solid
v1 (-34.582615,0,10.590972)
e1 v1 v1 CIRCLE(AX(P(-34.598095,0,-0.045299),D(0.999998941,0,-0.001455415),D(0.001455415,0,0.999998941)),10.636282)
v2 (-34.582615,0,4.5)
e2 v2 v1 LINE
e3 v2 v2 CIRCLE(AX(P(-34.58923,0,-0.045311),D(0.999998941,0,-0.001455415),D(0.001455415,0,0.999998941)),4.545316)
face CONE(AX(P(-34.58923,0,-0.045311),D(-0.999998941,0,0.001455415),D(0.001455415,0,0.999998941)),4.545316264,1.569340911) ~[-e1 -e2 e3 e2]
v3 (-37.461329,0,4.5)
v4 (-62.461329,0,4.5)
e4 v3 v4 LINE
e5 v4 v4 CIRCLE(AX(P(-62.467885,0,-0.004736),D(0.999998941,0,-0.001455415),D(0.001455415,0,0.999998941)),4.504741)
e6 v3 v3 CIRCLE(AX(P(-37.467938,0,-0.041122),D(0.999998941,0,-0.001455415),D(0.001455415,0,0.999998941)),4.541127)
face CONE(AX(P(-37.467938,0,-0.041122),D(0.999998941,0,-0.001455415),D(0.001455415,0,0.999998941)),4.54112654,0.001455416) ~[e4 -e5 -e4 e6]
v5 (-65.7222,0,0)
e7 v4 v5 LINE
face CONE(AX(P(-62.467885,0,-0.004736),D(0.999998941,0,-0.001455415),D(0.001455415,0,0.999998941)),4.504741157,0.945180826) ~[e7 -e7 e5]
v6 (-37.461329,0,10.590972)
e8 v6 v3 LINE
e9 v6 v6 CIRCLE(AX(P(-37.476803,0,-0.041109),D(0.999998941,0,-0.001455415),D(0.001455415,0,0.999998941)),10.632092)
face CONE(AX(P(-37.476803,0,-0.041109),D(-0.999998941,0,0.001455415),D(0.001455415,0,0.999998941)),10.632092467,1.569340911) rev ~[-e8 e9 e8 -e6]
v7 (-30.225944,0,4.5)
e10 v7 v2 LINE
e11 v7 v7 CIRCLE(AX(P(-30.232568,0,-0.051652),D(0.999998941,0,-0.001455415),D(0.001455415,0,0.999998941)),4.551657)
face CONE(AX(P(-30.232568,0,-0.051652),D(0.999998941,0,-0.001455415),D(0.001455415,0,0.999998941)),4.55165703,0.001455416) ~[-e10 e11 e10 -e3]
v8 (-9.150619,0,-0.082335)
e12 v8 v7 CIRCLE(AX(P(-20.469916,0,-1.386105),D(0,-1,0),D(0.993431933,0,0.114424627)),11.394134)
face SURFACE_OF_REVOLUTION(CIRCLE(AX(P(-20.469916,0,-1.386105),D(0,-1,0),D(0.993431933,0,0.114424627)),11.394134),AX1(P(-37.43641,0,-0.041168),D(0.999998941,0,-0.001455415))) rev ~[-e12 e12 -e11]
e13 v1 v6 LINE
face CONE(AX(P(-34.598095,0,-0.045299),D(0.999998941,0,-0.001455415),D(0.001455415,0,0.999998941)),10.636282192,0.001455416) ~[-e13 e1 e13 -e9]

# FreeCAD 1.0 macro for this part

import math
import FreeCAD as App
import Part
import Sketcher

V = App.Vector
Q = App.Units.Quantity

doc = App.newDocument("Part")
body = doc.addObject("PartDesign::Body", "Body")

# Sketch on XZ plane
sketch1 = body.newObject("Sketcher::SketchObject", "Sketch")
sketch1.AttachmentSupport = (doc.getObject("XZ_Plane"), [""])
sketch1.MapMode = "FlatFace"
sketch1.addGeometry([
    Part.LineSegment(V(-62.5, 4.5, 0), V(-65.7, 0, 0)),  # 0
    Part.LineSegment(V(-65.7, 0, 0), V(-9.2, -0.1, 0)),  # 1
    Part.ArcOfCircle(Part.Circle(V(-20.5, -1.4, 0), V(0, 0, 1), 11.4), math.radians(7), math.radians(149)),  # 2
    Part.LineSegment(V(-30.2, 4.5, 0), V(-34.6, 4.5, 0)),  # 3
    Part.LineSegment(V(-34.6, 4.5, 0), V(-34.6, 10.6, 0)),  # 4
    Part.LineSegment(V(-34.6, 10.6, 0), V(-37.5, 10.6, 0)),  # 5
    Part.LineSegment(V(-37.5, 10.6, 0), V(-37.5, 4.5, 0)),  # 6
    Part.LineSegment(V(-37.5, 4.5, 0), V(-62.5, 4.5, 0)),  # 7
], False)
sketch1.addGeometry(Part.LineSegment(V(-65.7, 0, 0), V(-9.2, -0.1, 0)), True)  # axis
sketch1.addConstraint([
    Sketcher.Constraint("Coincident", 0, 2, 1, 1),
    Sketcher.Constraint("Coincident", 1, 2, 2, 1),
    Sketcher.Constraint("Coincident", 2, 2, 3, 1),
    Sketcher.Constraint("Coincident", 3, 2, 4, 1),
    Sketcher.Constraint("Coincident", 4, 2, 5, 1),
    Sketcher.Constraint("Coincident", 5, 2, 6, 1),
    Sketcher.Constraint("Coincident", 6, 2, 7, 1),
    Sketcher.Constraint("Coincident", 7, 2, 0, 1),
    Sketcher.Constraint("Horizontal", 3),
    Sketcher.Constraint("Vertical", 4),
    Sketcher.Constraint("Horizontal", 5),
    Sketcher.Constraint("Vertical", 6),
    Sketcher.Constraint("Horizontal", 7),
    Sketcher.Constraint("Coincident", 8, 1, 0, 2),
    Sketcher.Constraint("Coincident", 8, 2, 1, 2),
    Sketcher.Constraint("PointOnObject", 0, 2, -1),
    Sketcher.Constraint("Horizontal", 3, 2, 6, 2),
    Sketcher.Constraint("DistanceX", 7, 2, 7, 1, Q("25 mm")),
    Sketcher.Constraint("DistanceY", -1, 1, 2, 2, Q("4.5 mm")),
    Sketcher.Constraint("Radius", 2, Q("11.394134 mm")),
    Sketcher.Constraint("DistanceX", 3, 2, 3, 1, Q("4.356671 mm")),
    Sketcher.Constraint("DistanceX", 0, 2, -1, 1, Q("65.7222 mm")),
    Sketcher.Constraint("DistanceX", 3, 2, 2, 3, Q("14.112699 mm")),
    Sketcher.Constraint("Distance", 1, Q("56.571641 mm")),
    Sketcher.Constraint("DistanceX", 5, 2, 5, 1, Q("2.878714 mm")),
    Sketcher.Constraint("DistanceY", 4, 1, 4, 2, Q("6.090972 mm")),
    Sketcher.Constraint("DistanceX", 5, 2, -1, 1, Q("37.461329 mm")),
])
revolution = body.newObject("PartDesign::Revolution", "Revolution")
revolution.Profile = sketch1
revolution.ReferenceAxis = (sketch1, ["Axis0"])
revolution.Angle = 360

doc.recompute()
